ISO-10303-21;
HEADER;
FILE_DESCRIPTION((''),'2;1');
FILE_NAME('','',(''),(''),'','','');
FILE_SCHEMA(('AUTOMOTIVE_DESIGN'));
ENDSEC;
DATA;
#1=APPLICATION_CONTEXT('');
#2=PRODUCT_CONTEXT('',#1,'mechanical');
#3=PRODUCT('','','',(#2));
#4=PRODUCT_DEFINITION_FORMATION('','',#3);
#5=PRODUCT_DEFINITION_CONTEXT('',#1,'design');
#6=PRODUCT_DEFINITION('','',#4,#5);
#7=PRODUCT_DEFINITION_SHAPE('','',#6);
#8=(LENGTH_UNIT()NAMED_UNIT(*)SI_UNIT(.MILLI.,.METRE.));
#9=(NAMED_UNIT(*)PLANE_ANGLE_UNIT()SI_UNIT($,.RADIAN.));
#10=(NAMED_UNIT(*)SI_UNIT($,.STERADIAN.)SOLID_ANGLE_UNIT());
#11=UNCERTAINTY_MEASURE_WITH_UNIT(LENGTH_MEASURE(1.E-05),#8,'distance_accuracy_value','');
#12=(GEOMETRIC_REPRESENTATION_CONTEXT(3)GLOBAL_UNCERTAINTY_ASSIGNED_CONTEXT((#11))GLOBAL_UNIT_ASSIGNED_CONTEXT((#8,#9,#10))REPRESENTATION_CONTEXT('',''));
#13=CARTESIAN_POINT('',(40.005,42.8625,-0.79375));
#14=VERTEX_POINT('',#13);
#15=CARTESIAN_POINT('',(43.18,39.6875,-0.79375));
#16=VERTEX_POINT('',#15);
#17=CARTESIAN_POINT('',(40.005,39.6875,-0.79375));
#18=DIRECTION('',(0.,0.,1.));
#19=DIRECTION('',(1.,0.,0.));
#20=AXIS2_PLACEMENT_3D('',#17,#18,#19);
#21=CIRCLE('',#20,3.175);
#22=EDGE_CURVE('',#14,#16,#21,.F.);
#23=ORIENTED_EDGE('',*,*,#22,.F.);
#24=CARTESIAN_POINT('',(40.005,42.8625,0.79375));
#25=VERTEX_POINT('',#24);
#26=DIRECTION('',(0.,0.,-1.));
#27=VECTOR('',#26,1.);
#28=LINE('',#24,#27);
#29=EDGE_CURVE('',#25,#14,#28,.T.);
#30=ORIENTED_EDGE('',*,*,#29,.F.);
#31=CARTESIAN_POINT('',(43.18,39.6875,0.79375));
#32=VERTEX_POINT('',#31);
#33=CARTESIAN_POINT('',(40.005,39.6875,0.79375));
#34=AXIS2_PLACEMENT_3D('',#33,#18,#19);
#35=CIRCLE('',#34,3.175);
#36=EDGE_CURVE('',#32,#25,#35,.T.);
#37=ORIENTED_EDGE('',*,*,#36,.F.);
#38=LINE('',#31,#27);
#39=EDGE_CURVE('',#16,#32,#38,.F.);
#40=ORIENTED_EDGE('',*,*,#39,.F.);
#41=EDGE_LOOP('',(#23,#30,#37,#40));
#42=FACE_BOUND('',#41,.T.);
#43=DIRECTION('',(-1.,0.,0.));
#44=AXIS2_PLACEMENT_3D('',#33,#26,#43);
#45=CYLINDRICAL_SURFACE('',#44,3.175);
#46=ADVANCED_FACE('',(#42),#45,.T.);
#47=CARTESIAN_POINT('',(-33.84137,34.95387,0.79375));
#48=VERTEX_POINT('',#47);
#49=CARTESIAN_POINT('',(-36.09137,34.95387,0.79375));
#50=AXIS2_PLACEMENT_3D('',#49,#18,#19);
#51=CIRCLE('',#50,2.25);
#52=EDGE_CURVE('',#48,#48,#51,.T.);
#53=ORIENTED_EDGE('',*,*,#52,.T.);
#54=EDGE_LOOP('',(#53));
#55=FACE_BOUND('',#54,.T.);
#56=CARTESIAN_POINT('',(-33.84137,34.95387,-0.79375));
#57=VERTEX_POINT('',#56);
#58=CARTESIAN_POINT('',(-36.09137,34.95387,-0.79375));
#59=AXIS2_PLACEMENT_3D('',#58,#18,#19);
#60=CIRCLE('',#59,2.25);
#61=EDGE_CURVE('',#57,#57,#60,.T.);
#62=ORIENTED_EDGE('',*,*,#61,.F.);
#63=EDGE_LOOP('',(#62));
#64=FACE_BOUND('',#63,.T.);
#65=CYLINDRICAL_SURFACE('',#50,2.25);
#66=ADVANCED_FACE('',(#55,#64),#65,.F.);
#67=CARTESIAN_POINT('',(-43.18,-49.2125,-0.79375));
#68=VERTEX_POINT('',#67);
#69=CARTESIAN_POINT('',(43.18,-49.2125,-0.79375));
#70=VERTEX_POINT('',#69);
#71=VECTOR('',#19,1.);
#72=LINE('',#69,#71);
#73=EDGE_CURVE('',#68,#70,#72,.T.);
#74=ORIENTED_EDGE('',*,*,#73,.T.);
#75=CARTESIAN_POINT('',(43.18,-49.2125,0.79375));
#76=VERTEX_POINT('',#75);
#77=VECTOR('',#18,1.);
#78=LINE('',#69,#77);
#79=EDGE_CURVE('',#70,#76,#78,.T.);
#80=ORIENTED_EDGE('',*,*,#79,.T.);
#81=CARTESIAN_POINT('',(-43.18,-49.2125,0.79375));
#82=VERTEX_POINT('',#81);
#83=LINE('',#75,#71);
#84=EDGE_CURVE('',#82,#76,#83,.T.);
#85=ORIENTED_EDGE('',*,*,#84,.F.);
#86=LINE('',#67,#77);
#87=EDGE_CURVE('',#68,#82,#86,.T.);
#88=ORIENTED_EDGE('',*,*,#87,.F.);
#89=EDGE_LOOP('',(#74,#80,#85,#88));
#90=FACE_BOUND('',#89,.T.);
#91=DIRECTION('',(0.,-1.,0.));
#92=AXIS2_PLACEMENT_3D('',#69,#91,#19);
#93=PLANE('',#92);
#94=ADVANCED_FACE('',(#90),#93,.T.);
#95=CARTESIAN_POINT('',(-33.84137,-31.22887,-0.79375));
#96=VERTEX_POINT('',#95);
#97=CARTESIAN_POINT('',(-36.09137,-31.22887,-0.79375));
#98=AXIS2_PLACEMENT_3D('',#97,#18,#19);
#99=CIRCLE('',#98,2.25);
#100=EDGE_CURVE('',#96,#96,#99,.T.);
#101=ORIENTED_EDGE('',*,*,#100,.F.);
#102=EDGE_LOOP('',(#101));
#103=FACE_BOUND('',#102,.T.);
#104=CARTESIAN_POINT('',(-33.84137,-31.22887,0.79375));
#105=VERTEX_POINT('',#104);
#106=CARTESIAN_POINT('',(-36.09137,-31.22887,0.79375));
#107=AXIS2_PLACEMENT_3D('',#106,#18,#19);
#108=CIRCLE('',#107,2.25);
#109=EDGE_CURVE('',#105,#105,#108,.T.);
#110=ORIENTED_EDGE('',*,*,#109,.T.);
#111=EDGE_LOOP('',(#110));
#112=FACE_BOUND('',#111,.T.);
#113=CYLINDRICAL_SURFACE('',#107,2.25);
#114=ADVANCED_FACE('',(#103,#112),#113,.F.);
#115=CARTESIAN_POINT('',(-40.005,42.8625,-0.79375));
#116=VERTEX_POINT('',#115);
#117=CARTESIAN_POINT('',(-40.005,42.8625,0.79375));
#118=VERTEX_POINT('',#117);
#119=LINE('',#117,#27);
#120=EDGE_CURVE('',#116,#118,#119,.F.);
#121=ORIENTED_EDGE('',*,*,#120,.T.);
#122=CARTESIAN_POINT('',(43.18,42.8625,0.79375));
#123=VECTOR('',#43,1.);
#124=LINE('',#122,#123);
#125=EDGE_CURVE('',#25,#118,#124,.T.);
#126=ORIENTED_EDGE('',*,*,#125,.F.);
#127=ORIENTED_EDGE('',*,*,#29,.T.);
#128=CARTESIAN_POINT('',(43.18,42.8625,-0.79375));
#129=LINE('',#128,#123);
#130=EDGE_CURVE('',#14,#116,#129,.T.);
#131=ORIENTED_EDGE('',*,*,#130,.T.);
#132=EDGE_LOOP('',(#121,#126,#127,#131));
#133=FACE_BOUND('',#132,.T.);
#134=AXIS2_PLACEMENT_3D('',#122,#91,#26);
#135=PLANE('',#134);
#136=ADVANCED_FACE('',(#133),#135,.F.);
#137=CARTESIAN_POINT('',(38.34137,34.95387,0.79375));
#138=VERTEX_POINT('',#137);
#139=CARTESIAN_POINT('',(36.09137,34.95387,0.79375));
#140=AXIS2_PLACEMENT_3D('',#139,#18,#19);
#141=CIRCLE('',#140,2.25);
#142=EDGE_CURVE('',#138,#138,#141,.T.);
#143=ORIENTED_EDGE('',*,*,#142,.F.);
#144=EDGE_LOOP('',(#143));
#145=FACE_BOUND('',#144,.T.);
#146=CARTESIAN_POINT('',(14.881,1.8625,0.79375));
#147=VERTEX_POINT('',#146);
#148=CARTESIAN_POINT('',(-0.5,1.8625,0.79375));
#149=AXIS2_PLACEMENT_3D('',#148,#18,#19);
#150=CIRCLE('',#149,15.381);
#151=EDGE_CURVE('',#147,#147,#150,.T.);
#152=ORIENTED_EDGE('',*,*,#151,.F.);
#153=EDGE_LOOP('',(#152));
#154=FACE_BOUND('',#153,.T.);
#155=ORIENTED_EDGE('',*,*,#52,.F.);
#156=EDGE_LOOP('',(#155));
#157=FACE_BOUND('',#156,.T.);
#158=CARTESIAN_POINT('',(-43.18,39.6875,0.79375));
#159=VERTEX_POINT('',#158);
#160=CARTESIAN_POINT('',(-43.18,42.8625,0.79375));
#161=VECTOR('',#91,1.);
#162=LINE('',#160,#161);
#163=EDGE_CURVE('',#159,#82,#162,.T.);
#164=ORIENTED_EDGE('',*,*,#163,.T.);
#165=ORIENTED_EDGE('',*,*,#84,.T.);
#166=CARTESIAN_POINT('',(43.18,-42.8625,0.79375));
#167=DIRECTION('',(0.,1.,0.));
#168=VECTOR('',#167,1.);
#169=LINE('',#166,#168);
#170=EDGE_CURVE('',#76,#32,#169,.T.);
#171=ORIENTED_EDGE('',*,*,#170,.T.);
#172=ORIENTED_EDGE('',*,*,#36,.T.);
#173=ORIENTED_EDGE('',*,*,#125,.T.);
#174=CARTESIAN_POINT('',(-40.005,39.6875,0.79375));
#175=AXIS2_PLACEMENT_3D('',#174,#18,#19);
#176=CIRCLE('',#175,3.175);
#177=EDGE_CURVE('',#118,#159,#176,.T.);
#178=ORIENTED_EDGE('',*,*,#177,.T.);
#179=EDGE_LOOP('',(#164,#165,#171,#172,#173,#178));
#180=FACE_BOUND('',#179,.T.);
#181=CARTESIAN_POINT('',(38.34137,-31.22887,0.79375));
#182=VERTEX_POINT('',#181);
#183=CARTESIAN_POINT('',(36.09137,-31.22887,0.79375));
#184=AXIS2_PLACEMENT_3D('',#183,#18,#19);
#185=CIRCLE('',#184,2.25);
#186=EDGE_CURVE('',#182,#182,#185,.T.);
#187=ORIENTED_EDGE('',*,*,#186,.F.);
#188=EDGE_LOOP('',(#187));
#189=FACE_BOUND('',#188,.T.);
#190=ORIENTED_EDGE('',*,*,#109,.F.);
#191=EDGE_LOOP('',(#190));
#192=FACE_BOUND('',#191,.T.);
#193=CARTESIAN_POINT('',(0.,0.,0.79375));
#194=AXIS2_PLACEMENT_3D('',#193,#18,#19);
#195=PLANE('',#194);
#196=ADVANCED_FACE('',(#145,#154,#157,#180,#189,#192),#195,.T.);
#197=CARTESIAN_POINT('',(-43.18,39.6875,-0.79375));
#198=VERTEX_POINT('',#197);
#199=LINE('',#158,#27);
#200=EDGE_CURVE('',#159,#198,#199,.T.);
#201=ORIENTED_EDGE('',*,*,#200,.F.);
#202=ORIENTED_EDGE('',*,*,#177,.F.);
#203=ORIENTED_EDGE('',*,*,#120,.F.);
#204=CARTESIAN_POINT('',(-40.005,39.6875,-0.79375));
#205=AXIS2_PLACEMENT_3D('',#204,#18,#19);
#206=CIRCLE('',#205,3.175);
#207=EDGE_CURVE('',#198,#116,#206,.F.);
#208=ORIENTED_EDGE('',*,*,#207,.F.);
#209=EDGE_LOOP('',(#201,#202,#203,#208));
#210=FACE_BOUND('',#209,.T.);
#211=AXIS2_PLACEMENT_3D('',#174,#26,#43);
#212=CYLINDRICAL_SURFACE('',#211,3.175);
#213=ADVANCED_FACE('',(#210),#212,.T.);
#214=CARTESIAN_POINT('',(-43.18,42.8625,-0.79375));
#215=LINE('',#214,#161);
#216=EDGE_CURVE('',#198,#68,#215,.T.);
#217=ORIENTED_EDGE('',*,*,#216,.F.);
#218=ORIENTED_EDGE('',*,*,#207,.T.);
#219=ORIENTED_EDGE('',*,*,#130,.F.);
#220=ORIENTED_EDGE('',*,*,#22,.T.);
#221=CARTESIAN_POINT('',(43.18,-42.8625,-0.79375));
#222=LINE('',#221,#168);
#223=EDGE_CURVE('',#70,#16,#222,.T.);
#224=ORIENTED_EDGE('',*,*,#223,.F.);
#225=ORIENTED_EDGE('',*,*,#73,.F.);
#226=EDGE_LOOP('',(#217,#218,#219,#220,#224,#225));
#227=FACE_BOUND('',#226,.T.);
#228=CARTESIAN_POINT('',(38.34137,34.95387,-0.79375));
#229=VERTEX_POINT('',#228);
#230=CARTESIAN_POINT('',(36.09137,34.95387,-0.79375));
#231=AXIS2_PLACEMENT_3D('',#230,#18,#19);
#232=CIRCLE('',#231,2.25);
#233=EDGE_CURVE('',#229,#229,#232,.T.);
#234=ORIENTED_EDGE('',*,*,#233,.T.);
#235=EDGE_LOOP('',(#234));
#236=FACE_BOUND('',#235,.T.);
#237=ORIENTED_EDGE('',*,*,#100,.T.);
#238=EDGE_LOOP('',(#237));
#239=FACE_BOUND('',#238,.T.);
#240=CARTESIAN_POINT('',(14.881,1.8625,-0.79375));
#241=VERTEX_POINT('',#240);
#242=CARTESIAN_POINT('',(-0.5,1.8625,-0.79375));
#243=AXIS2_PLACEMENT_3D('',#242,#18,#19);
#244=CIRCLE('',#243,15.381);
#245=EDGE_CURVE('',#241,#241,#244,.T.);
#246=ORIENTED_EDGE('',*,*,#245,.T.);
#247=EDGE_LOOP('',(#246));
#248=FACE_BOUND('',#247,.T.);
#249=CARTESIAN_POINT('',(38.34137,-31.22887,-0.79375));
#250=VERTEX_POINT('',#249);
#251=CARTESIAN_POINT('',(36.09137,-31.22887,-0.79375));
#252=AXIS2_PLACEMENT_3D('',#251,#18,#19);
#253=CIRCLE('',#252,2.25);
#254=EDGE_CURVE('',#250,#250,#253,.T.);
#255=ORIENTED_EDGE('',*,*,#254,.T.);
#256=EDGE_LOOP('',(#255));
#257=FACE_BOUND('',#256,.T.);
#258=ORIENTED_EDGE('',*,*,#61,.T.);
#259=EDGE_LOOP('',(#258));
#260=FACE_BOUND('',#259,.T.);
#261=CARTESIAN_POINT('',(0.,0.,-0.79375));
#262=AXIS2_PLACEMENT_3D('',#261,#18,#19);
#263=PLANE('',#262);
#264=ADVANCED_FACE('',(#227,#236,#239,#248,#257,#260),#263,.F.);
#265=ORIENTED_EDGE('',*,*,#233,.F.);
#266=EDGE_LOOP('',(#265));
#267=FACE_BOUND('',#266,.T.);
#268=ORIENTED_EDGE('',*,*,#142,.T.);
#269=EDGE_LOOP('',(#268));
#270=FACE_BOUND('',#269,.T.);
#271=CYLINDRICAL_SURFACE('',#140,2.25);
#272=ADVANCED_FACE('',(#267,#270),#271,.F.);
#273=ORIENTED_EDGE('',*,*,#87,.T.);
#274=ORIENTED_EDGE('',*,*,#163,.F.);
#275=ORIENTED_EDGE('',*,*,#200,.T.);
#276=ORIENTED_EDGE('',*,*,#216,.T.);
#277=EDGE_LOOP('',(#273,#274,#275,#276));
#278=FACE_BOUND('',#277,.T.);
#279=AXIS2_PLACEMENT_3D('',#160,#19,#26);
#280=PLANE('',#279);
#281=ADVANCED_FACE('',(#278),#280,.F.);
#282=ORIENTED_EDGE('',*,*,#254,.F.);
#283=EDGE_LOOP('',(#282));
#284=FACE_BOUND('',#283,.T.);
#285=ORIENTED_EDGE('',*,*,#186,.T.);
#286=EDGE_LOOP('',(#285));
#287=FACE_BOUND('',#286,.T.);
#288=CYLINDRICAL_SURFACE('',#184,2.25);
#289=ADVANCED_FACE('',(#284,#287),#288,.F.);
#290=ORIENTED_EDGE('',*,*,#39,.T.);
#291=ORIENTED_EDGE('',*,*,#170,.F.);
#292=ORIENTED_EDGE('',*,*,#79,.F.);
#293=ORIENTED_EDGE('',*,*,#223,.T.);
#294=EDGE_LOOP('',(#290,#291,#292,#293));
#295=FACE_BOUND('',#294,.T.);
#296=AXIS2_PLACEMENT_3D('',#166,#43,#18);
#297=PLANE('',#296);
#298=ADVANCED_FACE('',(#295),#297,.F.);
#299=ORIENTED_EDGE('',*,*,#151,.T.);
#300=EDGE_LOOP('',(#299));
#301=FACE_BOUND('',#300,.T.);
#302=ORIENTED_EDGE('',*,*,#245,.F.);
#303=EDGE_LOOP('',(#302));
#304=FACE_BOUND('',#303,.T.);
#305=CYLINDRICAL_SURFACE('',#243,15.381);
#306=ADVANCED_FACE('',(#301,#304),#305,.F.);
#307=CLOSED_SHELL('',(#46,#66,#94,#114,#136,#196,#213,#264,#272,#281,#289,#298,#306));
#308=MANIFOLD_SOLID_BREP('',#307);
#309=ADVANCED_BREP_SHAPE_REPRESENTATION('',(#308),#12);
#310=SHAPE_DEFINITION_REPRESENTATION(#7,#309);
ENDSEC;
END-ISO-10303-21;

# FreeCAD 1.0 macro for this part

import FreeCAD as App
import Part
import Sketcher

V = App.Vector
Q = App.Units.Quantity


def edges_at(feature, points):
    """Names of the edges that pass closest to the given points."""
    edges = feature.Shape.Edges
    near = lambda p: min(range(len(edges)), key=lambda i: edges[i].distToShape(Part.Vertex(*p))[0])
    return sorted({f"Edge{near(p) + 1}" for p in points})

doc = App.newDocument("Part")
params = doc.addObject("Spreadsheet::Sheet", "Params")
for row, (alias, value) in enumerate([
    ("sketch1_width", "3.4 in"),
    ("sketch1_height", "3.375 in"),
    ("pad1_length", "0.0625 in"),
    ("hole_diameter", "4.5 mm"),
    ("sketch4_width", "3.4 in"),
    ("sketch4_height", "0.25 in"),
    ("pad2_length", "0.0625 in"),
    ("fillet_radius", "0.125 in"),
], start=1):
    params.set(f"A{row}", alias)
    params.set(f"B{row}", "=" + value)
    params.setAlias(f"B{row}", alias)

body = doc.addObject("PartDesign::Body", "Body")

# Sketch on XY plane
sketch1 = body.newObject("Sketcher::SketchObject", "Sketch")
sketch1.AttachmentSupport = (doc.getObject("XY_Plane"), [""])
sketch1.MapMode = "FlatFace"
sketch1.addGeometry(Part.LineSegment(V(-43.18, 42.8625, 0), V(-43.18, -42.8625, 0)), False)
sketch1.addGeometry(Part.LineSegment(V(-43.18, -42.8625, 0), V(43.18, -42.8625, 0)), False)
sketch1.addGeometry(Part.LineSegment(V(43.18, -42.8625, 0), V(43.18, 42.8625, 0)), False)
sketch1.addGeometry(Part.LineSegment(V(43.18, 42.8625, 0), V(-43.18, 42.8625, 0)), False)
sketch1.addConstraint(Sketcher.Constraint("Coincident", 0, 2, 1, 1))
sketch1.addConstraint(Sketcher.Constraint("Coincident", 1, 2, 2, 1))
sketch1.addConstraint(Sketcher.Constraint("Coincident", 2, 2, 3, 1))
sketch1.addConstraint(Sketcher.Constraint("Coincident", 3, 2, 0, 1))
sketch1.addConstraint(Sketcher.Constraint("Vertical", 0))
sketch1.addConstraint(Sketcher.Constraint("Horizontal", 1))
sketch1.addConstraint(Sketcher.Constraint("Vertical", 2))
sketch1.addConstraint(Sketcher.Constraint("Horizontal", 3))
sketch1.addConstraint(Sketcher.Constraint("Symmetric", 0, 2, 2, 2, -1, 1))
sketch1.addConstraint(Sketcher.Constraint("DistanceX", 1, 1, 1, 2, Q("3.4 in")))
sketch1.addConstraint(Sketcher.Constraint("DistanceY", 0, 2, 0, 1, Q("3.375 in")))
sketch1.setExpression("Constraints[9]", "Params.sketch1_width")
sketch1.setExpression("Constraints[10]", "Params.sketch1_height")
pad1 = body.newObject("PartDesign::Pad", "Pad")
pad1.Profile = sketch1
pad1.setExpression("Length", "Params.pad1_length")
pad1.Midplane = True

# Sketch on XY plane
sketch2 = body.newObject("Sketcher::SketchObject", "Sketch001")
sketch2.AttachmentSupport = (doc.getObject("XY_Plane"), [""])
sketch2.MapMode = "FlatFace"
sketch2.AttachmentOffset = App.Placement(V(0, 0, 0.03125 * 25.4), App.Rotation())
sketch2.addGeometry(Part.Circle(V(-0.5, 1.8625, 0), V(0, 0, 1), 15.381), False)
sketch2.addConstraint(Sketcher.Constraint("Diameter", 0, Q("30.762 mm")))
sketch2.addConstraint(Sketcher.Constraint("DistanceX", 0, 3, -1, 1, Q("0.5 mm")))
sketch2.addConstraint(Sketcher.Constraint("DistanceY", -1, 1, 0, 3, Q("1.8625 mm")))
pocket1 = body.newObject("PartDesign::Pocket", "Pocket")
pocket1.Profile = sketch2
pocket1.Type = "ThroughAll"

# Sketch on XY plane
sketch3 = body.newObject("Sketcher::SketchObject", "Sketch002")
sketch3.AttachmentSupport = (doc.getObject("XY_Plane"), [""])
sketch3.MapMode = "FlatFace"
sketch3.AttachmentOffset = App.Placement(V(0, 0, 0.03125 * 25.4), App.Rotation())
sketch3.addGeometry(Part.Circle(V(36.09137, 34.95387, 0), V(0, 0, 1), 2.25), False)
sketch3.addGeometry(Part.Circle(V(36.09137, -31.22887, 0), V(0, 0, 1), 2.25), False)
sketch3.addGeometry(Part.Circle(V(-36.09137, 34.95387, 0), V(0, 0, 1), 2.25), False)
sketch3.addGeometry(Part.Circle(V(-36.09137, -31.22887, 0), V(0, 0, 1), 2.25), False)
sketch3.addConstraint(Sketcher.Constraint("Equal", 0, 1))
sketch3.addConstraint(Sketcher.Constraint("Equal", 1, 2))
sketch3.addConstraint(Sketcher.Constraint("Equal", 2, 3))
sketch3.addConstraint(Sketcher.Constraint("Symmetric", 0, 3, 2, 3, -2))
sketch3.addConstraint(Sketcher.Constraint("Symmetric", 1, 3, 3, 3, -2))
sketch3.addConstraint(Sketcher.Constraint("Vertical", 0, 3, 1, 3))
sketch3.addConstraint(Sketcher.Constraint("Diameter", 0, Q("4.5 mm")))
sketch3.addConstraint(Sketcher.Constraint("DistanceX", -1, 1, 0, 3, Q("36.09137 mm")))
sketch3.addConstraint(Sketcher.Constraint("DistanceY", -1, 1, 0, 3, Q("34.95387 mm")))
sketch3.addConstraint(Sketcher.Constraint("DistanceY", 1, 3, -1, 1, Q("31.22887 mm")))
doc.recompute()
hole = body.newObject("PartDesign::Hole", "Hole")
hole.Profile = sketch3
hole.ThreadType = "None"
hole.setExpression("Diameter", "Params.hole_diameter")
hole.DepthType = "ThroughAll"

# Sketch on XY plane
sketch4 = body.newObject("Sketcher::SketchObject", "Sketch003")
sketch4.AttachmentSupport = (doc.getObject("XY_Plane"), [""])
sketch4.MapMode = "FlatFace"
sketch4.AttachmentOffset = App.Placement(V(0, 0, 0.03125 * 25.4), App.Rotation())
sketch4.addGeometry(Part.LineSegment(V(-43.18, -42.8625, 0), V(-43.18, -49.2125, 0)), False)
sketch4.addGeometry(Part.LineSegment(V(-43.18, -49.2125, 0), V(43.18, -49.2125, 0)), False)
sketch4.addGeometry(Part.LineSegment(V(43.18, -49.2125, 0), V(43.18, -42.8625, 0)), False)
sketch4.addGeometry(Part.LineSegment(V(43.18, -42.8625, 0), V(-43.18, -42.8625, 0)), False)
sketch4.addConstraint(Sketcher.Constraint("Coincident", 0, 2, 1, 1))
sketch4.addConstraint(Sketcher.Constraint("Coincident", 1, 2, 2, 1))
sketch4.addConstraint(Sketcher.Constraint("Coincident", 2, 2, 3, 1))
sketch4.addConstraint(Sketcher.Constraint("Coincident", 3, 2, 0, 1))
sketch4.addConstraint(Sketcher.Constraint("Vertical", 0))
sketch4.addConstraint(Sketcher.Constraint("Horizontal", 1))
sketch4.addConstraint(Sketcher.Constraint("Vertical", 2))
sketch4.addConstraint(Sketcher.Constraint("Horizontal", 3))
sketch4.addConstraint(Sketcher.Constraint("DistanceX", 1, 1, 1, 2, Q("3.4 in")))
sketch4.addConstraint(Sketcher.Constraint("DistanceY", 0, 2, 0, 1, Q("0.25 in")))
sketch4.addConstraint(Sketcher.Constraint("DistanceX", 0, 2, -1, 1, Q("1.7 in")))
sketch4.addConstraint(Sketcher.Constraint("DistanceY", 0, 2, -1, 1, Q("1.9375 in")))
sketch4.setExpression("Constraints[8]", "Params.sketch4_width")
sketch4.setExpression("Constraints[9]", "Params.sketch4_height")
pad2 = body.newObject("PartDesign::Pad", "Pad001")
pad2.Profile = sketch4
pad2.setExpression("Length", "Params.pad2_length")
pad2.Reversed = True
doc.recompute()

fillet = body.newObject("PartDesign::Fillet", "Fillet")
fillet.Base = (pad2, edges_at(pad2, [(-43.18, 42.862, 0), (43.18, 42.862, 0)]))
fillet.setExpression("Radius", "Params.fillet_radius")

doc.recompute()
